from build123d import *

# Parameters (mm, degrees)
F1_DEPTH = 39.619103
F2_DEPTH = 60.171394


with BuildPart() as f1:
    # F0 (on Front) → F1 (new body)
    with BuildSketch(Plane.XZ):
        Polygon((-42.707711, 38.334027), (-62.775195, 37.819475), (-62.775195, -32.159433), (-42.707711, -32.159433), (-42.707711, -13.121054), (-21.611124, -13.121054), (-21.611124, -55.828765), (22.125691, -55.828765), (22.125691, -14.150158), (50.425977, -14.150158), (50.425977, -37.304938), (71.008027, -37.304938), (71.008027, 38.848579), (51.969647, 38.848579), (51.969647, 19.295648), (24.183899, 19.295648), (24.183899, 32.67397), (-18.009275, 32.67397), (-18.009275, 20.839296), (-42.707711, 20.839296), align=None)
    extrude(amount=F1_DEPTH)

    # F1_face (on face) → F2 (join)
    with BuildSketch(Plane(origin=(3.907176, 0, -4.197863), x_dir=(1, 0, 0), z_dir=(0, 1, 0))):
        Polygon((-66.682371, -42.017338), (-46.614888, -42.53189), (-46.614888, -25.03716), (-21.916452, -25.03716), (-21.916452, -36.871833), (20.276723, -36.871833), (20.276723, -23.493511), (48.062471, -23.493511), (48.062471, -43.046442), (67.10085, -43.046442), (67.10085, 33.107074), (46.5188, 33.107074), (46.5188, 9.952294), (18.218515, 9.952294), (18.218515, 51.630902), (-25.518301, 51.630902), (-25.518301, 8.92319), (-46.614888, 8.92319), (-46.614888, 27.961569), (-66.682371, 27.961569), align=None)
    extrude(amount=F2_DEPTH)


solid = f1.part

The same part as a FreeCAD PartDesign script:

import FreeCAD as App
import Part
import Sketcher
from FreeCAD import Vector


def add_polygon(sketch, points):
    """Adds a closed chain of lines whose ends are joined by coincident constraints."""
    first, n = sketch.GeometryCount, len(points)
    for a, b in zip(points, points[1:] + points[:1]):
        sketch.addGeometry(Part.LineSegment(App.Vector(*a, 0), App.Vector(*b, 0)), False)
    for i in range(n):
        sketch.addConstraint(Sketcher.Constraint("Coincident", first + i, 2, first + (i + 1) % n, 1))

doc = App.newDocument("Part")
params = doc.addObject("Spreadsheet::Sheet", "Params")
for row, (alias, value) in enumerate([
    ("pad1_length", "39.619103 mm"),
    ("pad2_length", "60.171394 mm"),
], start=1):
    params.set(f"A{row}", alias)
    params.set(f"B{row}", "=" + value)
    params.setAlias(f"B{row}", alias)

body = doc.addObject("PartDesign::Body", "Body")

sketch1 = body.newObject("Sketcher::SketchObject", "Sketch")
sketch1.AttachmentSupport = (doc.getObject("XZ_Plane"), [""])
sketch1.MapMode = "FlatFace"
add_polygon(sketch1, [(-42.707711, 38.334027), (-62.775195, 37.819475), (-62.775195, -32.159433), (-42.707711, -32.159433), (-42.707711, -13.121054), (-21.611124, -13.121054), (-21.611124, -55.828765), (22.125691, -55.828765), (22.125691, -14.150158), (50.425977, -14.150158), (50.425977, -37.304938), (71.008027, -37.304938), (71.008027, 38.848579), (51.969647, 38.848579), (51.969647, 19.295648), (24.183899, 19.295648), (24.183899, 32.67397), (-18.009275, 32.67397), (-18.009275, 20.839296), (-42.707711, 20.839296)])
sketch1.addConstraint([
    Sketcher.Constraint("Vertical", 1),
    Sketcher.Constraint("Horizontal", 2),
    Sketcher.Constraint("Vertical", 3),
    Sketcher.Constraint("Horizontal", 4),
    Sketcher.Constraint("Vertical", 5),
    Sketcher.Constraint("Horizontal", 6),
    Sketcher.Constraint("Vertical", 7),
    Sketcher.Constraint("Horizontal", 8),
    Sketcher.Constraint("Vertical", 9),
    Sketcher.Constraint("Horizontal", 10),
    Sketcher.Constraint("Vertical", 11),
    Sketcher.Constraint("Horizontal", 12),
    Sketcher.Constraint("Vertical", 13),
    Sketcher.Constraint("Horizontal", 14),
    Sketcher.Constraint("Vertical", 15),
    Sketcher.Constraint("Horizontal", 16),
    Sketcher.Constraint("Vertical", 17),
    Sketcher.Constraint("Horizontal", 18),
    Sketcher.Constraint("Vertical", 19),
    Sketcher.Constraint("Vertical", 3, 2, 18, 2),
    Sketcher.Constraint("Equal", 12, 3),
    Sketcher.Constraint("DistanceX", 10, 1, 10, 2, 20.58205),
    Sketcher.Constraint("DistanceX", 12, 2, 12, 1, 19.03838),
    Sketcher.Constraint("DistanceX", 14, 2, 14, 1, 27.785748),
    Sketcher.Constraint("DistanceY", 5, 2, 5, 1, 42.707711),
    Sketcher.Constraint("DistanceY", 9, 2, 9, 1, 23.15478),
    Sketcher.Constraint("DistanceY", 13, 2, 13, 1, 19.552931),
    Sketcher.Constraint("DistanceY", 15, 1, 15, 2, 13.378322),
    Sketcher.Constraint("DistanceY", 19, 1, 19, 2, 17.494731),
    Sketcher.Constraint("DistanceX", -1, 1, 14, 2, 24.183899),
    Sketcher.Constraint("DistanceX", 4, 2, 8, 2, 72.037101),
    Sketcher.Constraint("Distance", 0, 20.07408),
    Sketcher.Constraint("DistanceX", 2, 1, 2, 2, 20.067484),
    Sketcher.Constraint("DistanceX", 4, 1, 4, 2, 21.096587),
    Sketcher.Constraint("DistanceX", 6, 1, 6, 2, 43.736815),
    Sketcher.Constraint("DistanceX", 16, 2, 16, 1, 42.193174),
    Sketcher.Constraint("DistanceY", 1, 2, 1, 1, 69.978908),
    Sketcher.Constraint("DistanceY", 7, 1, 7, 2, 41.678607),
    Sketcher.Constraint("DistanceY", 11, 1, 11, 2, 76.153517),
    Sketcher.Constraint("DistanceY", -1, 1, 11, 2, 38.848579),
])
pad1 = body.newObject("PartDesign::Pad", "Pad")
pad1.Profile = sketch1
pad1.setExpression("Length", "Params.pad1_length")

sketch2 = body.newObject("Sketcher::SketchObject", "Sketch001")
sketch2.AttachmentSupport = (doc.getObject("XZ_Plane"), [""])
sketch2.MapMode = "FlatFace"
add_polygon(sketch2, [(-62.775195, 37.819475), (-42.707712, 38.334027), (-42.707712, 20.839297), (-18.009276, 20.839297), (-18.009276, 32.67397), (24.183899, 32.67397), (24.183899, 19.295648), (51.969647, 19.295648), (51.969647, 38.848579), (71.008026, 38.848579), (71.008026, -37.304937), (50.425976, -37.304937), (50.425976, -14.150157), (22.125691, -14.150157), (22.125691, -55.828765), (-21.611125, -55.828765), (-21.611125, -13.121053), (-42.707712, -13.121053), (-42.707712, -32.159432), (-62.775195, -32.159432)])
sketch2.addConstraint([
    Sketcher.Constraint("Vertical", 1),
    Sketcher.Constraint("Horizontal", 2),
    Sketcher.Constraint("Vertical", 3),
    Sketcher.Constraint("Horizontal", 4),
    Sketcher.Constraint("Vertical", 5),
    Sketcher.Constraint("Horizontal", 6),
    Sketcher.Constraint("Vertical", 7),
    Sketcher.Constraint("Horizontal", 8),
    Sketcher.Constraint("Vertical", 9),
    Sketcher.Constraint("Horizontal", 10),
    Sketcher.Constraint("Vertical", 11),
    Sketcher.Constraint("Horizontal", 12),
    Sketcher.Constraint("Vertical", 13),
    Sketcher.Constraint("Horizontal", 14),
    Sketcher.Constraint("Vertical", 15),
    Sketcher.Constraint("Horizontal", 16),
    Sketcher.Constraint("Vertical", 17),
    Sketcher.Constraint("Horizontal", 18),
    Sketcher.Constraint("Vertical", 19),
    Sketcher.Constraint("Vertical", 1, 2, 16, 2),
    Sketcher.Constraint("Equal", 8, 17),
    Sketcher.Constraint("DistanceX", 6, 1, 6, 2, 27.785748),
    Sketcher.Constraint("DistanceX", 8, 1, 8, 2, 19.038379),
    Sketcher.Constraint("DistanceX", 10, 2, 10, 1, 20.58205),
    Sketcher.Constraint("DistanceY", 1, 2, 1, 1, 17.49473),
    Sketcher.Constraint("DistanceY", 5, 2, 5, 1, 13.378322),
    Sketcher.Constraint("DistanceY", 7, 1, 7, 2, 19.552931),
    Sketcher.Constraint("DistanceY", 11, 1, 11, 2, 23.15478),
    Sketcher.Constraint("DistanceX", -1, 1, 4, 2, 24.183899),
    Sketcher.Constraint("DistanceX", 3, 2, 8, 2, 89.017302),
    Sketcher.Constraint("DistanceX", 14, 2, 10, 2, 72.037101),
    Sketcher.Constraint("Distance", 0, 20.074079),
    Sketcher.Constraint("DistanceX", 2, 1, 2, 2, 24.698436),
    Sketcher.Constraint("DistanceX", 12, 2, 12, 1, 28.300285),
    Sketcher.Constraint("DistanceX", 18, 2, 18, 1, 20.067483),
    Sketcher.Constraint("DistanceY", 3, 1, 3, 2, 11.834673),
    Sketcher.Constraint("DistanceY", 9, 2, 9, 1, 76.153516),
    Sketcher.Constraint("DistanceY", 13, 2, 13, 1, 41.678608),
    Sketcher.Constraint("DistanceY", 15, 1, 15, 2, 42.707712),
    Sketcher.Constraint("DistanceY", -1, 1, 3, 2, 32.67397),
])
pad2 = body.newObject("PartDesign::Pad", "Pad001")
pad2.Profile = sketch2
pad2.setExpression("Length", "Params.pad2_length")
pad2.Reversed = True

doc.recompute()
